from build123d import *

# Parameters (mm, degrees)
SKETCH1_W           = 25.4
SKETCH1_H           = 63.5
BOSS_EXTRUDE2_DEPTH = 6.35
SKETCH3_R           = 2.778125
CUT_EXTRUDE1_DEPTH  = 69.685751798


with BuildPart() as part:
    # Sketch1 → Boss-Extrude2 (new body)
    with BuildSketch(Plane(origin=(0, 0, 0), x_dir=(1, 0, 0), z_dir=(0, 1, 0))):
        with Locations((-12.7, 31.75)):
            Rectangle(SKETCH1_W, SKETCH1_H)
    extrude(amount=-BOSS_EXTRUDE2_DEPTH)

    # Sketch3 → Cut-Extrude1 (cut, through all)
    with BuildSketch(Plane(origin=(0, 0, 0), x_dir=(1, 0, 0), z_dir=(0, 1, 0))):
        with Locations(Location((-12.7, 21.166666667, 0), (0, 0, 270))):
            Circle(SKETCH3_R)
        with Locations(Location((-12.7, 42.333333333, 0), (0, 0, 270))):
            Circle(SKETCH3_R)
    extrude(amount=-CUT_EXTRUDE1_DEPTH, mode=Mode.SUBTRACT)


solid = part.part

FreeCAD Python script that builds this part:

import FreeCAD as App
import Part
import Sketcher

V = App.Vector
Q = App.Units.Quantity

doc = App.newDocument("Part")
body = doc.addObject("PartDesign::Body", "Body")

sketch1 = doc.addObject("Sketcher::SketchObject", "Sketch")
body.addObject(sketch1)
sketch1.AttachmentSupport = (doc.XZ_Plane, [""])
sketch1.MapMode = "FlatFace"
sketch1.addGeometry(Part.LineSegment(V(-25, -64, 0), V(-25, 0, 0)), False)
sketch1.addGeometry(Part.LineSegment(V(-25, 0, 0), V(0, 0, 0)), False)
sketch1.addGeometry(Part.LineSegment(V(0, 0, 0), V(0, -64, 0)), False)
sketch1.addGeometry(Part.LineSegment(V(0, -64, 0), V(-25, -64, 0)), False)
sketch1.addConstraint(Sketcher.Constraint("Coincident", 0, 2, 1, 1))
sketch1.addConstraint(Sketcher.Constraint("Coincident", 1, 2, 2, 1))
sketch1.addConstraint(Sketcher.Constraint("Coincident", 2, 2, 3, 1))
sketch1.addConstraint(Sketcher.Constraint("Coincident", 3, 2, 0, 1))
sketch1.addConstraint(Sketcher.Constraint("Vertical", 0))
sketch1.addConstraint(Sketcher.Constraint("Horizontal", 1))
sketch1.addConstraint(Sketcher.Constraint("Vertical", 2))
sketch1.addConstraint(Sketcher.Constraint("Horizontal", 3))
sketch1.addConstraint(Sketcher.Constraint("Coincident", 1, 2, -1, 1))
sketch1.addConstraint(Sketcher.Constraint("DistanceX", 1, 1, 1, 2, Q("1 in")))
sketch1.addConstraint(Sketcher.Constraint("DistanceY", 0, 1, 0, 2, Q("2.5 in")))
pad1 = doc.addObject("PartDesign::Pad", "Pad")
body.addObject(pad1)
pad1.Profile = sketch1
pad1.Length = Q("0.25 in")

sketch2 = doc.addObject("Sketcher::SketchObject", "Sketch001")
body.addObject(sketch2)
sketch2.AttachmentSupport = (doc.XZ_Plane, [""])
sketch2.MapMode = "FlatFace"
sketch2.addGeometry(Part.Circle(V(-12.7, -21.2, 0), V(0, 0, 1), 2.8), False)
sketch2.addGeometry(Part.Circle(V(-12.7, -42.3, 0), V(0, 0, 1), 2.8), False)
sketch2.addConstraint(Sketcher.Constraint("Equal", 0, 1))
sketch2.addConstraint(Sketcher.Constraint("Vertical", 0, 3, 1, 3))
sketch2.addConstraint(Sketcher.Constraint("Diameter", 0, Q("0.21875 in")))
sketch2.addConstraint(Sketcher.Constraint("DistanceX", 0, 3, -1, 1, Q("0.5 in")))
sketch2.addConstraint(Sketcher.Constraint("DistanceY", 0, 3, -1, 1, Q("21.166667 mm")))
sketch2.addConstraint(Sketcher.Constraint("DistanceY", 1, 3, -1, 1, Q("42.333333 mm")))
pocket1 = doc.addObject("PartDesign::Pocket", "Pocket")
body.addObject(pocket1)
pocket1.Profile = sketch2
pocket1.Type = "ThroughAll"
pocket1.Reversed = True

doc.recompute()
